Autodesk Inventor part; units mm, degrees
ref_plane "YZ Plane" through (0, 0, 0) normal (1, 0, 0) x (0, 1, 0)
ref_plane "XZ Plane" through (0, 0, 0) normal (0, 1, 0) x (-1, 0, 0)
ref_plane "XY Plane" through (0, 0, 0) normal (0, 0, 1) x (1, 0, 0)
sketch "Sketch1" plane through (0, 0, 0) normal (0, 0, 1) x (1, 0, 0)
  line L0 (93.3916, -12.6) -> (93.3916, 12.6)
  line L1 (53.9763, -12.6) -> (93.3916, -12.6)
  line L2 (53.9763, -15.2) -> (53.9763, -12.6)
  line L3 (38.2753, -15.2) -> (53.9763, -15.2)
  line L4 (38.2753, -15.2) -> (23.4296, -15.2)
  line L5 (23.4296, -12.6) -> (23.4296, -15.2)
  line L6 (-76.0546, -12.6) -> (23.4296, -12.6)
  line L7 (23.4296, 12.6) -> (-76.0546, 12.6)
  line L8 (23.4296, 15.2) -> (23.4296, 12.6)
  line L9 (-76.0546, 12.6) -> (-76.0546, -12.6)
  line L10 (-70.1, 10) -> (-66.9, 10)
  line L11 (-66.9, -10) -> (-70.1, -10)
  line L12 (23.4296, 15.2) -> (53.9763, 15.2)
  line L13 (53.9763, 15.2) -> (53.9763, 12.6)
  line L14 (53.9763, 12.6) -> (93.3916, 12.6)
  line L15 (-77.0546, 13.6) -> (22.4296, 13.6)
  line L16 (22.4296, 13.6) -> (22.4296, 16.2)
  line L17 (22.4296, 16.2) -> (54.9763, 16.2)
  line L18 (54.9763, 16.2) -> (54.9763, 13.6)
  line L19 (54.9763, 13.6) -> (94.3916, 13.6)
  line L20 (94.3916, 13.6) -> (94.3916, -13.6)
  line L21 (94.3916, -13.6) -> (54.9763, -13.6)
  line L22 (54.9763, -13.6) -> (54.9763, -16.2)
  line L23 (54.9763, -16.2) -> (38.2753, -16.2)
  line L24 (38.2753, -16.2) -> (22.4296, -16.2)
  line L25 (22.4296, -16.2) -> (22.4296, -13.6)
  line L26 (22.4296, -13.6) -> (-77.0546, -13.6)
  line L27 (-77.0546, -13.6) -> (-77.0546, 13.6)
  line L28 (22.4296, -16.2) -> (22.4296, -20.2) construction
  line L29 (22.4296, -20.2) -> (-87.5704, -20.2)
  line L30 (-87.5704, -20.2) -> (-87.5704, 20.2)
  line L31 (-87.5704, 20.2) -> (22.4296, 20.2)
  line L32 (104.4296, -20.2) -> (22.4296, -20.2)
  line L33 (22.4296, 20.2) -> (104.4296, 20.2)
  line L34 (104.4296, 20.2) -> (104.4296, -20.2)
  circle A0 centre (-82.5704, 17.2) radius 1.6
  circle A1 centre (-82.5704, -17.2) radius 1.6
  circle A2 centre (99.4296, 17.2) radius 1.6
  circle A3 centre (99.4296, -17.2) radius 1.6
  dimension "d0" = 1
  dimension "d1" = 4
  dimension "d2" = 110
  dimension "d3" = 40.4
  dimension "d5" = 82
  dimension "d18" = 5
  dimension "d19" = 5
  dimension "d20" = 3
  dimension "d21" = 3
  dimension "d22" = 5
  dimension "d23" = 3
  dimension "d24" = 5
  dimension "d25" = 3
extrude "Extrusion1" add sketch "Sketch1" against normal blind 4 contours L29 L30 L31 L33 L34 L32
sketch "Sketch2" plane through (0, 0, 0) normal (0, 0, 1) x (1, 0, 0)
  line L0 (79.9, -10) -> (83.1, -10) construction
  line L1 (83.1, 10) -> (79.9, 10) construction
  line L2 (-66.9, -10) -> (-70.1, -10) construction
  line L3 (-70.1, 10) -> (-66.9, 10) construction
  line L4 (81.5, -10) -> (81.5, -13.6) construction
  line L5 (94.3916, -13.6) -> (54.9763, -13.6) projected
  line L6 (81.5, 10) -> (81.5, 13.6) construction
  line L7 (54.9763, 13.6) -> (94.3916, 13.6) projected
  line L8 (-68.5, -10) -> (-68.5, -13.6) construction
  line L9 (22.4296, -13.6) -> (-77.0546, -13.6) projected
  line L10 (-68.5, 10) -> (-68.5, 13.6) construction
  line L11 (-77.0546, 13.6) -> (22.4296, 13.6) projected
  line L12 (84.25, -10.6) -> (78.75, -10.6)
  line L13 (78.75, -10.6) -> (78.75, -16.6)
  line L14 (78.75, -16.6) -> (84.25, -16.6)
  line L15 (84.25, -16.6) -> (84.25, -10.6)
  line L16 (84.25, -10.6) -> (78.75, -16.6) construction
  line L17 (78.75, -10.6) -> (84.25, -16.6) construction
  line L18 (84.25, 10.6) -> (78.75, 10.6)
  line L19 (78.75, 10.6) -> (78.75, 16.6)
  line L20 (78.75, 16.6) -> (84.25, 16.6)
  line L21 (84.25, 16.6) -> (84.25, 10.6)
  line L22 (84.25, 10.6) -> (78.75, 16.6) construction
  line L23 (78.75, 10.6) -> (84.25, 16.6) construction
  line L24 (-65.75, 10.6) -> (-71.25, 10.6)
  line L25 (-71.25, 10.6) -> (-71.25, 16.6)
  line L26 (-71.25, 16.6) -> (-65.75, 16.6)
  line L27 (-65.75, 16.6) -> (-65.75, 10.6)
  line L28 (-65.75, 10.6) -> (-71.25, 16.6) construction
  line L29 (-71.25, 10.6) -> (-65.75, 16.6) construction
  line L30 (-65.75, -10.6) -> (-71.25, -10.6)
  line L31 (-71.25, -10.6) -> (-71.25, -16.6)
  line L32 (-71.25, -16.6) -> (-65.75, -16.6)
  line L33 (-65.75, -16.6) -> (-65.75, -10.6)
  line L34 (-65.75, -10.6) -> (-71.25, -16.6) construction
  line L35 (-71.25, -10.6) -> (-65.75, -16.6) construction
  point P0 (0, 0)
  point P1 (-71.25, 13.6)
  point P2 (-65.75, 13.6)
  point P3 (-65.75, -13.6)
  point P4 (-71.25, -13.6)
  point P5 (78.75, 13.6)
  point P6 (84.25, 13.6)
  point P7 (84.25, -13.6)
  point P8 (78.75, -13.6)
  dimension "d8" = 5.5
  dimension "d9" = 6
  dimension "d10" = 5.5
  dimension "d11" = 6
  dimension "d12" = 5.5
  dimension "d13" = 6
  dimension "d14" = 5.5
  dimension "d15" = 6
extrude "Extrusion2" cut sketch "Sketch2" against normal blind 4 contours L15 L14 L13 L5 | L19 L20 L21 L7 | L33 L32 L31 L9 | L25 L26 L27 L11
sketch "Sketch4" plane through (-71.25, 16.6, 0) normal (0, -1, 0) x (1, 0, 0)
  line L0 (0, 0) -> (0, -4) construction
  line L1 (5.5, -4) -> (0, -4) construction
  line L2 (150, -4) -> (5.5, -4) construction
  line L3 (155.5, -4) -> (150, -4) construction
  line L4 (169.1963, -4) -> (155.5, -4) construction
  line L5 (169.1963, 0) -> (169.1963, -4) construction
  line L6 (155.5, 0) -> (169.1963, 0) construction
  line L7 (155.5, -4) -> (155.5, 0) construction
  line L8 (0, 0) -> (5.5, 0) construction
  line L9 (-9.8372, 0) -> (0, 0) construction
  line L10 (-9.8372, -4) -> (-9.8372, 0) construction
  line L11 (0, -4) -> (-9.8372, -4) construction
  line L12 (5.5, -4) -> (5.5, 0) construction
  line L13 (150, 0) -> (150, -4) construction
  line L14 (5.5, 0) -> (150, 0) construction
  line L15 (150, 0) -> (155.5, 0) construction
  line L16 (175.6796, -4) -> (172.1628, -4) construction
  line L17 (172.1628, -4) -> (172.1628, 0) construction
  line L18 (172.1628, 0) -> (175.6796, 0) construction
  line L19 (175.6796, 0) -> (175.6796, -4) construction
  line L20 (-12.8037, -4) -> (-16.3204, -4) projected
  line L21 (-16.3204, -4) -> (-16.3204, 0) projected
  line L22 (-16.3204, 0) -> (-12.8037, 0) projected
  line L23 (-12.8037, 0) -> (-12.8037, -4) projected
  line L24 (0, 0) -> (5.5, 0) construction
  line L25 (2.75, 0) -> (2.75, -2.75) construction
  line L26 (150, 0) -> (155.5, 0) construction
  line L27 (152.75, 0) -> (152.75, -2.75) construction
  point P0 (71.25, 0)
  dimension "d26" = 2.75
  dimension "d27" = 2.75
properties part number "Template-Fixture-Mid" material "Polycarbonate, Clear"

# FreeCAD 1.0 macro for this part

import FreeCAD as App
import Part
import Sketcher

V = App.Vector
Q = App.Units.Quantity

doc = App.newDocument("Part")
body = doc.addObject("PartDesign::Body", "Body")

# Sketch on XY plane
sketch1 = body.newObject("Sketcher::SketchObject", "Sketch")
sketch1.AttachmentSupport = (doc.getObject("XY_Plane"), [""])
sketch1.MapMode = "FlatFace"
sketch1.addGeometry(Part.LineSegment(V(-87.5704, -20.2, 0), V(104.4296, -20.2, 0)), False)
sketch1.addGeometry(Part.LineSegment(V(104.4296, -20.2, 0), V(104.4296, 20.2, 0)), False)
sketch1.addGeometry(Part.LineSegment(V(104.4296, 20.2, 0), V(-87.5704, 20.2, 0)), False)
sketch1.addGeometry(Part.LineSegment(V(-87.5704, 20.2, 0), V(-87.5704, -20.2, 0)), False)
sketch1.addGeometry(Part.Circle(V(-82.5704, -17.2, 0), V(0, 0, 1), 1.6), False)
sketch1.addGeometry(Part.Circle(V(99.4296, -17.2, 0), V(0, 0, 1), 1.6), False)
sketch1.addGeometry(Part.Circle(V(-82.5704, 17.2, 0), V(0, 0, 1), 1.6), False)
sketch1.addGeometry(Part.LineSegment(V(-77.0546, -13.6, 0), V(-77.0546, 13.6, 0)), False)
sketch1.addGeometry(Part.LineSegment(V(-77.0546, 13.6, 0), V(22.4296, 13.6, 0)), False)
sketch1.addGeometry(Part.LineSegment(V(22.4296, 13.6, 0), V(22.4296, 16.2, 0)), False)
sketch1.addGeometry(Part.LineSegment(V(22.4296, 16.2, 0), V(54.9763, 16.2, 0)), False)
sketch1.addGeometry(Part.LineSegment(V(54.9763, 16.2, 0), V(54.9763, 13.6, 0)), False)
sketch1.addGeometry(Part.LineSegment(V(54.9763, 13.6, 0), V(94.3916, 13.6, 0)), False)
sketch1.addGeometry(Part.LineSegment(V(94.3916, 13.6, 0), V(94.3916, -13.6, 0)), False)
sketch1.addGeometry(Part.LineSegment(V(94.3916, -13.6, 0), V(54.9763, -13.6, 0)), False)
sketch1.addGeometry(Part.LineSegment(V(54.9763, -13.6, 0), V(54.9763, -16.2, 0)), False)
sketch1.addGeometry(Part.LineSegment(V(54.9763, -16.2, 0), V(22.4296, -16.2, 0)), False)
sketch1.addGeometry(Part.LineSegment(V(22.4296, -16.2, 0), V(22.4296, -13.6, 0)), False)
sketch1.addGeometry(Part.LineSegment(V(22.4296, -13.6, 0), V(-77.0546, -13.6, 0)), False)
sketch1.addGeometry(Part.Circle(V(99.4296, 17.2, 0), V(0, 0, 1), 1.6), False)
sketch1.addConstraint(Sketcher.Constraint("Coincident", 0, 2, 1, 1))
sketch1.addConstraint(Sketcher.Constraint("Coincident", 1, 2, 2, 1))
sketch1.addConstraint(Sketcher.Constraint("Coincident", 2, 2, 3, 1))
sketch1.addConstraint(Sketcher.Constraint("Coincident", 3, 2, 0, 1))
sketch1.addConstraint(Sketcher.Constraint("Coincident", 7, 2, 8, 1))
sketch1.addConstraint(Sketcher.Constraint("Coincident", 8, 2, 9, 1))
sketch1.addConstraint(Sketcher.Constraint("Coincident", 9, 2, 10, 1))
sketch1.addConstraint(Sketcher.Constraint("Coincident", 10, 2, 11, 1))
sketch1.addConstraint(Sketcher.Constraint("Coincident", 11, 2, 12, 1))
sketch1.addConstraint(Sketcher.Constraint("Coincident", 12, 2, 13, 1))
sketch1.addConstraint(Sketcher.Constraint("Coincident", 13, 2, 14, 1))
sketch1.addConstraint(Sketcher.Constraint("Coincident", 14, 2, 15, 1))
sketch1.addConstraint(Sketcher.Constraint("Coincident", 15, 2, 16, 1))
sketch1.addConstraint(Sketcher.Constraint("Coincident", 16, 2, 17, 1))
sketch1.addConstraint(Sketcher.Constraint("Coincident", 17, 2, 18, 1))
sketch1.addConstraint(Sketcher.Constraint("Coincident", 18, 2, 7, 1))
sketch1.addConstraint(Sketcher.Constraint("Horizontal", 0))
sketch1.addConstraint(Sketcher.Constraint("Vertical", 1))
sketch1.addConstraint(Sketcher.Constraint("Horizontal", 2))
sketch1.addConstraint(Sketcher.Constraint("Vertical", 3))
sketch1.addConstraint(Sketcher.Constraint("Vertical", 7))
sketch1.addConstraint(Sketcher.Constraint("Horizontal", 8))
sketch1.addConstraint(Sketcher.Constraint("Vertical", 9))
sketch1.addConstraint(Sketcher.Constraint("Horizontal", 10))
sketch1.addConstraint(Sketcher.Constraint("Vertical", 11))
sketch1.addConstraint(Sketcher.Constraint("Horizontal", 12))
sketch1.addConstraint(Sketcher.Constraint("Vertical", 13))
sketch1.addConstraint(Sketcher.Constraint("Horizontal", 14))
sketch1.addConstraint(Sketcher.Constraint("Vertical", 15))
sketch1.addConstraint(Sketcher.Constraint("Horizontal", 16))
sketch1.addConstraint(Sketcher.Constraint("Vertical", 17))
sketch1.addConstraint(Sketcher.Constraint("Horizontal", 18))
sketch1.addConstraint(Sketcher.Constraint("Equal", 4, 5))
sketch1.addConstraint(Sketcher.Constraint("Equal", 5, 6))
sketch1.addConstraint(Sketcher.Constraint("Equal", 6, 19))
sketch1.addConstraint(Sketcher.Constraint("Symmetric", 4, 3, 6, 3, -1))
sketch1.addConstraint(Sketcher.Constraint("Symmetric", 5, 3, 19, 3, -1))
sketch1.addConstraint(Sketcher.Constraint("Symmetric", 11, 2, 14, 2, -1))
sketch1.addConstraint(Sketcher.Constraint("Symmetric", 9, 2, 16, 2, -1))
sketch1.addConstraint(Sketcher.Constraint("Horizontal", 4, 3, 5, 3))
sketch1.addConstraint(Sketcher.Constraint("Horizontal", 8, 2, 11, 2))
sketch1.addConstraint(Sketcher.Constraint("Horizontal", 14, 2, 17, 2))
sketch1.addConstraint(Sketcher.Constraint("DistanceY", 1, 1, 1, 2, Q("40.4 mm")))
sketch1.addConstraint(Sketcher.Constraint("DistanceX", 5, 3, 0, 2, Q("5 mm")))
sketch1.addConstraint(Sketcher.Constraint("DistanceY", 0, 2, 5, 3, Q("3 mm")))
sketch1.addConstraint(Sketcher.Constraint("DistanceY", 19, 3, 1, 2, Q("3 mm")))
sketch1.addConstraint(Sketcher.Constraint("DistanceX", 2, 2, 6, 3, Q("5 mm")))
sketch1.addConstraint(Sketcher.Constraint("DistanceX", 8, 2, 1, 2, Q("82 mm")))
sketch1.addConstraint(Sketcher.Constraint("DistanceY", 9, 2, 19, 3, Q("1 mm")))
sketch1.addConstraint(Sketcher.Constraint("Diameter", 4, Q("3.2 mm")))
sketch1.addConstraint(Sketcher.Constraint("DistanceX", 0, 1, 0, 2, Q("192 mm")))
sketch1.addConstraint(Sketcher.Constraint("DistanceY", 7, 1, 7, 2, Q("27.2 mm")))
sketch1.addConstraint(Sketcher.Constraint("DistanceX", 8, 1, 8, 2, Q("99.4842 mm")))
sketch1.addConstraint(Sketcher.Constraint("DistanceX", 10, 1, 10, 2, Q("32.5467 mm")))
sketch1.addConstraint(Sketcher.Constraint("DistanceX", 12, 1, 12, 2, Q("39.4153 mm")))
sketch1.addConstraint(Sketcher.Constraint("DistanceX", 4, 3, -1, 1, Q("82.5704 mm")))
pad1 = body.newObject("PartDesign::Pad", "Pad")
pad1.Profile = sketch1
pad1.Length = 4
pad1.Reversed = True

# Sketch on XY plane
sketch2 = body.newObject("Sketcher::SketchObject", "Sketch001")
sketch2.AttachmentSupport = (doc.getObject("XY_Plane"), [""])
sketch2.MapMode = "FlatFace"
sketch2.addGeometry(Part.LineSegment(V(84.25, -16.6, 0), V(84.25, -13.6, 0)), False)
sketch2.addGeometry(Part.LineSegment(V(84.25, -13.6, 0), V(78.75, -13.6, 0)), False)
sketch2.addGeometry(Part.LineSegment(V(78.75, -13.6, 0), V(78.75, -16.6, 0)), False)
sketch2.addGeometry(Part.LineSegment(V(78.75, -16.6, 0), V(84.25, -16.6, 0)), False)
sketch2.addGeometry(Part.LineSegment(V(78.75, 16.6, 0), V(78.75, 13.6, 0)), False)
sketch2.addGeometry(Part.LineSegment(V(78.75, 13.6, 0), V(84.25, 13.6, 0)), False)
sketch2.addGeometry(Part.LineSegment(V(84.25, 13.6, 0), V(84.25, 16.6, 0)), False)
sketch2.addGeometry(Part.LineSegment(V(84.25, 16.6, 0), V(78.75, 16.6, 0)), False)
sketch2.addGeometry(Part.LineSegment(V(-65.75, -16.6, 0), V(-65.75, -13.6, 0)), False)
sketch2.addGeometry(Part.LineSegment(V(-65.75, -13.6, 0), V(-71.25, -13.6, 0)), False)
sketch2.addGeometry(Part.LineSegment(V(-71.25, -13.6, 0), V(-71.25, -16.6, 0)), False)
sketch2.addGeometry(Part.LineSegment(V(-71.25, -16.6, 0), V(-65.75, -16.6, 0)), False)
sketch2.addGeometry(Part.LineSegment(V(-71.25, 16.6, 0), V(-71.25, 13.6, 0)), False)
sketch2.addGeometry(Part.LineSegment(V(-71.25, 13.6, 0), V(-65.75, 13.6, 0)), False)
sketch2.addGeometry(Part.LineSegment(V(-65.75, 13.6, 0), V(-65.75, 16.6, 0)), False)
sketch2.addGeometry(Part.LineSegment(V(-65.75, 16.6, 0), V(-71.25, 16.6, 0)), False)
sketch2.addConstraint(Sketcher.Constraint("Coincident", 0, 2, 1, 1))
sketch2.addConstraint(Sketcher.Constraint("Coincident", 1, 2, 2, 1))
sketch2.addConstraint(Sketcher.Constraint("Coincident", 2, 2, 3, 1))
sketch2.addConstraint(Sketcher.Constraint("Coincident", 3, 2, 0, 1))
sketch2.addConstraint(Sketcher.Constraint("Coincident", 4, 2, 5, 1))
sketch2.addConstraint(Sketcher.Constraint("Coincident", 5, 2, 6, 1))
sketch2.addConstraint(Sketcher.Constraint("Coincident", 6, 2, 7, 1))
sketch2.addConstraint(Sketcher.Constraint("Coincident", 7, 2, 4, 1))
sketch2.addConstraint(Sketcher.Constraint("Coincident", 8, 2, 9, 1))
sketch2.addConstraint(Sketcher.Constraint("Coincident", 9, 2, 10, 1))
sketch2.addConstraint(Sketcher.Constraint("Coincident", 10, 2, 11, 1))
sketch2.addConstraint(Sketcher.Constraint("Coincident", 11, 2, 8, 1))
sketch2.addConstraint(Sketcher.Constraint("Coincident", 12, 2, 13, 1))
sketch2.addConstraint(Sketcher.Constraint("Coincident", 13, 2, 14, 1))
sketch2.addConstraint(Sketcher.Constraint("Coincident", 14, 2, 15, 1))
sketch2.addConstraint(Sketcher.Constraint("Coincident", 15, 2, 12, 1))
sketch2.addConstraint(Sketcher.Constraint("Vertical", 0))
sketch2.addConstraint(Sketcher.Constraint("Horizontal", 1))
sketch2.addConstraint(Sketcher.Constraint("Vertical", 2))
sketch2.addConstraint(Sketcher.Constraint("Horizontal", 3))
sketch2.addConstraint(Sketcher.Constraint("Vertical", 4))
sketch2.addConstraint(Sketcher.Constraint("Horizontal", 5))
sketch2.addConstraint(Sketcher.Constraint("Vertical", 6))
sketch2.addConstraint(Sketcher.Constraint("Horizontal", 7))
sketch2.addConstraint(Sketcher.Constraint("Vertical", 8))
sketch2.addConstraint(Sketcher.Constraint("Horizontal", 9))
sketch2.addConstraint(Sketcher.Constraint("Vertical", 10))
sketch2.addConstraint(Sketcher.Constraint("Horizontal", 11))
sketch2.addConstraint(Sketcher.Constraint("Vertical", 12))
sketch2.addConstraint(Sketcher.Constraint("Horizontal", 13))
sketch2.addConstraint(Sketcher.Constraint("Vertical", 14))
sketch2.addConstraint(Sketcher.Constraint("Horizontal", 15))
sketch2.addConstraint(Sketcher.Constraint("Symmetric", 1, 2, 4, 2, -1))
sketch2.addConstraint(Sketcher.Constraint("Symmetric", 3, 2, 6, 2, -1))
sketch2.addConstraint(Sketcher.Constraint("Symmetric", 9, 2, 12, 2, -1))
sketch2.addConstraint(Sketcher.Constraint("Symmetric", 11, 2, 14, 2, -1))
sketch2.addConstraint(Sketcher.Constraint("Horizontal", 1, 2, 8, 2))
sketch2.addConstraint(Sketcher.Constraint("Horizontal", 3, 2, 10, 2))
sketch2.addConstraint(Sketcher.Constraint("Equal", 7, 9))
sketch2.addConstraint(Sketcher.Constraint("DistanceX", 1, 2, 1, 1, Q("5.5 mm")))
sketch2.addConstraint(Sketcher.Constraint("DistanceY", 0, 1, 0, 2, Q("3 mm")))
sketch2.addConstraint(Sketcher.Constraint("DistanceX", 8, 2, 0, 2, Q("150 mm")))
sketch2.addConstraint(Sketcher.Constraint("DistanceY", 0, 2, -1, 1, Q("13.6 mm")))
sketch2.addConstraint(Sketcher.Constraint("DistanceX", -1, 1, 0, 2, Q("84.25 mm")))
pocket1 = body.newObject("PartDesign::Pocket", "Pocket")
pocket1.Profile = sketch2
pocket1.Length = 4

doc.recompute()
